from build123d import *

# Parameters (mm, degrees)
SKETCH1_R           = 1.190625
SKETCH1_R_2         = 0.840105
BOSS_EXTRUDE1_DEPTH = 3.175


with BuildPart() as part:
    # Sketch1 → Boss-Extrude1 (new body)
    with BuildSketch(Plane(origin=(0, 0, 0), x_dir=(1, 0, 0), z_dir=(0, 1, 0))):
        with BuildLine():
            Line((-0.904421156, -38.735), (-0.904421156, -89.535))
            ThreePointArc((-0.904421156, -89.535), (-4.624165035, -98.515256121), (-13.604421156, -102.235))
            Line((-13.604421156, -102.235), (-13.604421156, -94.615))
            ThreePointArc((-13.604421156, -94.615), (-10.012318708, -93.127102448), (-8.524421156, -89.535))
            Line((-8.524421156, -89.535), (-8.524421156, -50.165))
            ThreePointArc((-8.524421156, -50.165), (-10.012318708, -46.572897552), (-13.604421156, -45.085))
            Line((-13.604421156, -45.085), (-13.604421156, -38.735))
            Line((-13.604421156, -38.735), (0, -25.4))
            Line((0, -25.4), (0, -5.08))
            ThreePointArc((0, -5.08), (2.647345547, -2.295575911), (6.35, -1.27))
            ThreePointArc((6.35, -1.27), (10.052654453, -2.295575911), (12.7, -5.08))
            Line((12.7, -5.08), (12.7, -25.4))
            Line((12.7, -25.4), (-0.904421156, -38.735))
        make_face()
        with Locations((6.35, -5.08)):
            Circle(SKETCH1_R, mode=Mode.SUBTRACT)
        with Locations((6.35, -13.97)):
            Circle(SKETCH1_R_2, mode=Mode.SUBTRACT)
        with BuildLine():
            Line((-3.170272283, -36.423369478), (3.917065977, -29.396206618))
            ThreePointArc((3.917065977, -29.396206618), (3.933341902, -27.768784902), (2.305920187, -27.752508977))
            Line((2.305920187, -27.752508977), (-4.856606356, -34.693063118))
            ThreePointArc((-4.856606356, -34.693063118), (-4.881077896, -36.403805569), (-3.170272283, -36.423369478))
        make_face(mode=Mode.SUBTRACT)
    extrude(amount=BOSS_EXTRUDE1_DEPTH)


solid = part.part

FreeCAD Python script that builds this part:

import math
import FreeCAD as App
import Part
import Sketcher

V = App.Vector
Q = App.Units.Quantity

doc = App.newDocument("Part")
params = doc.addObject("Spreadsheet::Sheet", "Params")
for row, (alias, value) in enumerate([
    ("sketch1_radius", "0.2 in"),
    ("sketch1_radius2", "0.5 in"),
    ("sketch1_height", "2 in"),
    ("sketch1_diameter", "0.09375 in"),
    ("sketch1_height2", "0.8 in"),
    ("pad1_length", "0.125 in"),
], start=1):
    params.set(f"A{row}", alias)
    params.set(f"B{row}", "=" + value)
    params.setAlias(f"B{row}", alias)

body = doc.addObject("PartDesign::Body", "Body")

sketch1 = body.newObject("Sketcher::SketchObject", "Sketch")
sketch1.AttachmentSupport = (doc.getObject("XZ_Plane"), [""])
sketch1.MapMode = "FlatFace"
sketch1.addGeometry(Part.LineSegment(V(-0.9, 89.5, 0), V(-0.9, 38.7, 0)), False)
sketch1.addGeometry(Part.LineSegment(V(-0.9, 38.7, 0), V(12.7, 25.4, 0)), False)
sketch1.addGeometry(Part.LineSegment(V(12.7, 25.4, 0), V(12.7, 5.1, 0)), False)
sketch1.addGeometry(Part.ArcOfCircle(Part.Circle(V(6.3, 8.5, 0), V(0, 0, 1), 7.2), math.radians(-90), math.radians(-28)), False)
sketch1.addGeometry(Part.ArcOfCircle(Part.Circle(V(6.3, 8.5, 0), V(0, 0, 1), 7.2), math.radians(-152), math.radians(-90)), False)
sketch1.addGeometry(Part.LineSegment(V(0, 5.1, 0), V(0, 25.4, 0)), False)
sketch1.addGeometry(Part.LineSegment(V(0, 25.4, 0), V(-13.6, 38.7, 0)), False)
sketch1.addGeometry(Part.LineSegment(V(-13.6, 38.7, 0), V(-13.6, 45.1, 0)), False)
sketch1.addGeometry(Part.ArcOfCircle(Part.Circle(V(-13.6, 50.2, 0), V(0, 0, 1), 5.1), math.radians(-90), math.radians(0)), False)
sketch1.addGeometry(Part.LineSegment(V(-8.5, 50.2, 0), V(-8.5, 89.5, 0)), False)
sketch1.addGeometry(Part.ArcOfCircle(Part.Circle(V(-13.6, 89.5, 0), V(0, 0, 1), 5.1), math.radians(0), math.radians(90)), False)
sketch1.addGeometry(Part.LineSegment(V(-13.6, 94.6, 0), V(-13.6, 102.2, 0)), False)
sketch1.addGeometry(Part.ArcOfCircle(Part.Circle(V(-13.6, 89.5, 0), V(0, 0, 1), 12.7), math.radians(0), math.radians(90)), False)
sketch1.addGeometry(Part.ArcOfCircle(Part.Circle(V(-4, 35.6, 0), V(0, 0, 1), 1.2), math.radians(46), math.radians(226)), False)
sketch1.addGeometry(Part.LineSegment(V(-4.9, 34.7, 0), V(2.3, 27.8, 0)), False)
sketch1.addGeometry(Part.ArcOfCircle(Part.Circle(V(3.1, 28.6, 0), V(0, 0, 1), 1.2), math.radians(-134), math.radians(46)), False)
sketch1.addGeometry(Part.LineSegment(V(3.9, 29.4, 0), V(-3.2, 36.4, 0)), False)
sketch1.addGeometry(Part.Circle(V(6.3, 14, 0), V(0, 0, 1), 0.8), False)
sketch1.addGeometry(Part.Circle(V(6.3, 5.1, 0), V(0, 0, 1), 1.2), False)
sketch1.addConstraint(Sketcher.Constraint("Coincident", 0, 2, 1, 1))
sketch1.addConstraint(Sketcher.Constraint("Coincident", 1, 2, 2, 1))
sketch1.addConstraint(Sketcher.Constraint("Coincident", 2, 2, 3, 2))
sketch1.addConstraint(Sketcher.Constraint("Tangent", 3, 1, 4, 2))
sketch1.addConstraint(Sketcher.Constraint("Coincident", 4, 1, 5, 1))
sketch1.addConstraint(Sketcher.Constraint("Coincident", 5, 2, 6, 1))
sketch1.addConstraint(Sketcher.Constraint("Coincident", 6, 2, 7, 1))
sketch1.addConstraint(Sketcher.Constraint("Coincident", 7, 2, 8, 1))
sketch1.addConstraint(Sketcher.Constraint("Tangent", 8, 2, 9, 1))
sketch1.addConstraint(Sketcher.Constraint("Tangent", 9, 2, 10, 1))
sketch1.addConstraint(Sketcher.Constraint("Coincident", 10, 2, 11, 1))
sketch1.addConstraint(Sketcher.Constraint("Coincident", 11, 2, 12, 2))
sketch1.addConstraint(Sketcher.Constraint("Tangent", 12, 1, 0, 1))
sketch1.addConstraint(Sketcher.Constraint("Tangent", 13, 2, 14, 1))
sketch1.addConstraint(Sketcher.Constraint("Coincident", 14, 2, 15, 1))
sketch1.addConstraint(Sketcher.Constraint("Coincident", 15, 2, 16, 1))
sketch1.addConstraint(Sketcher.Constraint("Coincident", 16, 2, 13, 1))
sketch1.addConstraint(Sketcher.Constraint("Vertical", 0))
sketch1.addConstraint(Sketcher.Constraint("Vertical", 2))
sketch1.addConstraint(Sketcher.Constraint("Vertical", 5))
sketch1.addConstraint(Sketcher.Constraint("Vertical", 7))
sketch1.addConstraint(Sketcher.Constraint("Vertical", 9))
sketch1.addConstraint(Sketcher.Constraint("Vertical", 11))
sketch1.addConstraint(Sketcher.Constraint("Coincident", 12, 3, 10, 3))
sketch1.addConstraint(Sketcher.Constraint("Equal", 3, 4))
sketch1.addConstraint(Sketcher.Constraint("Equal", 8, 10))
sketch1.addConstraint(Sketcher.Constraint("PointOnObject", 4, 1, -2))
sketch1.addConstraint(Sketcher.Constraint("Parallel", 1, 6))
sketch1.addConstraint(Sketcher.Constraint("Horizontal", 18, 3, 2, 2))
sketch1.addConstraint(Sketcher.Constraint("Horizontal", 2, 2, 4, 1))
sketch1.addConstraint(Sketcher.Constraint("Horizontal", 1, 2, 5, 2))
sketch1.addConstraint(Sketcher.Constraint("Horizontal", 0, 2, 6, 2))
sketch1.addConstraint(Sketcher.Constraint("Vertical", 4, 3, 17, 3))
sketch1.addConstraint(Sketcher.Constraint("Vertical", 17, 3, 18, 3))
sketch1.addConstraint(Sketcher.Constraint("Vertical", 18, 3, 3, 1))
sketch1.addConstraint(Sketcher.Constraint("Vertical", 12, 3, 6, 2))
sketch1.addConstraint(Sketcher.Constraint("Vertical", 7, 2, 10, 2))
sketch1.addConstraint(Sketcher.Constraint("Radius", 8, Q("0.2 in")))
sketch1.addConstraint(Sketcher.Constraint("Radius", 12, Q("0.5 in")))
sketch1.addConstraint(Sketcher.Constraint("DistanceY", 0, 2, 0, 1, Q("2 in")))
sketch1.addConstraint(Sketcher.Constraint("Diameter", 18, Q("0.09375 in")))
sketch1.addConstraint(Sketcher.Constraint("DistanceY", 2, 2, 2, 1, Q("0.8 in")))
sketch1.addConstraint(Sketcher.Constraint("DistanceY", -1, 1, 1, 2, Q("1 in")))
sketch1.addConstraint(Sketcher.Constraint("DistanceY", 7, 1, 7, 2, Q("0.25 in")))
sketch1.addConstraint(Sketcher.Constraint("DistanceY", 3, 1, 17, 3, Q("0.5 in")))
sketch1.addConstraint(Sketcher.Constraint("Distance", 1, Q("0.75 in")))
sketch1.addConstraint(Sketcher.Constraint("DistanceY", -1, 1, 17, 3, Q("0.55 in")))
sketch1.addConstraint(Sketcher.Constraint("Diameter", 17, 1.68021))
sketch1.addConstraint(Sketcher.Constraint("DistanceY", -1, 1, 8, 3, Q("1.975 in")))
sketch1.addConstraint(Sketcher.Constraint("Radius", 13, 1.20807))
sketch1.addConstraint(Sketcher.Constraint("Radius", 15, 1.150818))
sketch1.addConstraint(Sketcher.Constraint("DistanceX", 8, 3, 13, 3, Q("0.3775 in")))
sketch1.addConstraint(Sketcher.Constraint("DistanceX", 13, 2, 15, 3, 7.968099))
sketch1.addConstraint(Sketcher.Constraint("Distance", 14, 9.973619))
sketch1.addConstraint(Sketcher.Constraint("Distance", 16, 9.98055))
sketch1.addConstraint(Sketcher.Constraint("DistanceX", -1, 1, 14, 2, 2.30592))
sketch1.addConstraint(Sketcher.Constraint("DistanceY", -1, 1, 14, 2, 27.752509))
sketch1.addConstraint(Sketcher.Constraint("DistanceY", -1, 1, 16, 2, 36.423369))
sketch1.setExpression("Constraints[37]", "Params.sketch1_radius")
sketch1.setExpression("Constraints[38]", "Params.sketch1_radius2")
sketch1.setExpression("Constraints[39]", "Params.sketch1_height")
sketch1.setExpression("Constraints[40]", "Params.sketch1_diameter")
sketch1.setExpression("Constraints[41]", "Params.sketch1_height2")
pad1 = body.newObject("PartDesign::Pad", "Pad")
pad1.Profile = sketch1
pad1.setExpression("Length", "Params.pad1_length")
pad1.Reversed = True

doc.recompute()
